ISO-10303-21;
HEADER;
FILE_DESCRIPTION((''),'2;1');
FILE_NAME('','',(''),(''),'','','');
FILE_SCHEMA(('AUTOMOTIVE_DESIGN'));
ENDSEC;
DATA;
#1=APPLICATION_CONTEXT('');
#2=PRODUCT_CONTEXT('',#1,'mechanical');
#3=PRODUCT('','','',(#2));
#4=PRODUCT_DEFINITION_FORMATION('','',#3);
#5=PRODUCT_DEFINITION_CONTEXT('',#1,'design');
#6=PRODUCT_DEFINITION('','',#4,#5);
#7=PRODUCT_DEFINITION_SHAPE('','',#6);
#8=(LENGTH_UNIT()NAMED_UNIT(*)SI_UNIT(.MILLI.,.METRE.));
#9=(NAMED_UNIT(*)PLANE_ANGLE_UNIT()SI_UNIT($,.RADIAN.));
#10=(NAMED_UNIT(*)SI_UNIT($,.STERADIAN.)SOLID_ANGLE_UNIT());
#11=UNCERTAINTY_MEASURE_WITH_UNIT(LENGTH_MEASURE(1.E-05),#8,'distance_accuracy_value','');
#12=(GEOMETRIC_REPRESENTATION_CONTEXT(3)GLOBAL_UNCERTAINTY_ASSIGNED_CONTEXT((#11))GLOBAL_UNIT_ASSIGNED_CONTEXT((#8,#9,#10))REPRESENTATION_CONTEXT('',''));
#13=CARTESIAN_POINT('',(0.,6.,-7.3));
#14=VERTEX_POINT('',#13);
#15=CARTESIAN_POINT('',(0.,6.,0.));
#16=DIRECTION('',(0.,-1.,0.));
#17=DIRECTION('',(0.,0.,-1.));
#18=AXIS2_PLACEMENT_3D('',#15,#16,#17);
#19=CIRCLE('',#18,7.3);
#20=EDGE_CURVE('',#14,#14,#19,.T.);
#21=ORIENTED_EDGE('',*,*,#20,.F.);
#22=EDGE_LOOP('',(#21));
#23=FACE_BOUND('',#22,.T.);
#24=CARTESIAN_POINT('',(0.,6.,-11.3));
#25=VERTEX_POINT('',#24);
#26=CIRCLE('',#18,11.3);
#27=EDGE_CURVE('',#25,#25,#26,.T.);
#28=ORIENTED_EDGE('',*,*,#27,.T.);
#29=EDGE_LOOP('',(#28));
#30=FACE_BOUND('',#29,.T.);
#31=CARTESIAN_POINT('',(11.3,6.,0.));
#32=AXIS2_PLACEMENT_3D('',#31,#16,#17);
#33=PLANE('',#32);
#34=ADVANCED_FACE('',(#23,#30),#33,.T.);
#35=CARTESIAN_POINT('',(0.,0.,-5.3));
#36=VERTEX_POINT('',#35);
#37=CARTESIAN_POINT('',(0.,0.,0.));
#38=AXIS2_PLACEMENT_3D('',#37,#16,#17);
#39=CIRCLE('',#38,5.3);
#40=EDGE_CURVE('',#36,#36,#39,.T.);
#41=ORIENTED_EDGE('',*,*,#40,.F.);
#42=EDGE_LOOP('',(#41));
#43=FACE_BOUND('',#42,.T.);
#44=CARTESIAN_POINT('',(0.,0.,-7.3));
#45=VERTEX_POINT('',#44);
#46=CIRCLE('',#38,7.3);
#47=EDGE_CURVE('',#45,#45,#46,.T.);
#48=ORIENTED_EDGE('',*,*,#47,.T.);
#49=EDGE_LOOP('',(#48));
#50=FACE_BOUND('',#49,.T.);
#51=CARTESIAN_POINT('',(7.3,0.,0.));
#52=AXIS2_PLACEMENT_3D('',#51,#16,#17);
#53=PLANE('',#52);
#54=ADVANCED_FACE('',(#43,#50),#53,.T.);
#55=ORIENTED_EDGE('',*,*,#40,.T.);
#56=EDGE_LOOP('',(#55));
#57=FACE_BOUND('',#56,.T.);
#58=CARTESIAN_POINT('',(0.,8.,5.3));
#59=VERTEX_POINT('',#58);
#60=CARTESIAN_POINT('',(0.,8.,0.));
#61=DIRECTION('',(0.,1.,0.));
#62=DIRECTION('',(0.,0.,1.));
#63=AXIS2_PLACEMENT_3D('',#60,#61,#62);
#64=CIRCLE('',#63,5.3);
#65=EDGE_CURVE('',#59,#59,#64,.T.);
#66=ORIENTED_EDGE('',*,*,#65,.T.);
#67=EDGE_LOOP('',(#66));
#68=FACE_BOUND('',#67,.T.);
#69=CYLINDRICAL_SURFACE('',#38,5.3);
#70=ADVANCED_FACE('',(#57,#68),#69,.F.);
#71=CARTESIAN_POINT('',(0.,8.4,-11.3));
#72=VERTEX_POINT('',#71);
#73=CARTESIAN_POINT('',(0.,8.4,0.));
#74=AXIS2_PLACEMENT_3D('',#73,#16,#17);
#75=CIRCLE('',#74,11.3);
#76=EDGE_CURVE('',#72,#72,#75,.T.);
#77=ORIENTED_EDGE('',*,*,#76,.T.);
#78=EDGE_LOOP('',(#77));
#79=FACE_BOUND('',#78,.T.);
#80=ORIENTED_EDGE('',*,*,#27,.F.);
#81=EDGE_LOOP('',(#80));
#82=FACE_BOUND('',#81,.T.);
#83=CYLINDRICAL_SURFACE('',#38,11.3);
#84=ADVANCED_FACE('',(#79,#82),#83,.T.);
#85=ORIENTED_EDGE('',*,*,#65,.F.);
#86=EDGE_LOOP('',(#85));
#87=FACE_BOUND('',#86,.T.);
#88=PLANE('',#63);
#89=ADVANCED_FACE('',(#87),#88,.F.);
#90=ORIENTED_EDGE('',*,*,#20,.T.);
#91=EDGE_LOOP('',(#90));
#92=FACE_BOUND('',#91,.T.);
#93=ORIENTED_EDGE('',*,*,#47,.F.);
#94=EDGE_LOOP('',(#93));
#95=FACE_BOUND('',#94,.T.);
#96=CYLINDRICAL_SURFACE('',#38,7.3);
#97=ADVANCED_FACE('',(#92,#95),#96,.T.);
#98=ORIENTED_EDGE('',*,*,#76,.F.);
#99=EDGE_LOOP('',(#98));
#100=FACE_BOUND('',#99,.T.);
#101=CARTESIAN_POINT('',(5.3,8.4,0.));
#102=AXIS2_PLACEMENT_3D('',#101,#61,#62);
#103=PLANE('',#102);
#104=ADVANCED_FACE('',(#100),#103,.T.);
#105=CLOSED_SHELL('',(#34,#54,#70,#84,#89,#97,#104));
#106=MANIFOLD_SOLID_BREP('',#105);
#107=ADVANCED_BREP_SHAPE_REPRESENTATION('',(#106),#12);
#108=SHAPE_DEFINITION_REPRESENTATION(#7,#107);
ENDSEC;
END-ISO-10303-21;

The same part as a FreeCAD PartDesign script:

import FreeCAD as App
import Part
import Sketcher

V = App.Vector
Q = App.Units.Quantity


def add_polygon(sketch, points):
    """Adds a closed chain of lines whose ends are joined by coincident constraints."""
    first, n = sketch.GeometryCount, len(points)
    for a, b in zip(points, points[1:] + points[:1]):
        sketch.addGeometry(Part.LineSegment(App.Vector(*a, 0), App.Vector(*b, 0)), False)
    for i in range(n):
        sketch.addConstraint(Sketcher.Constraint("Coincident", first + i, 2, first + (i + 1) % n, 1))

doc = App.newDocument("Part")
params = doc.addObject("Spreadsheet::Sheet", "Params")
for row, (alias, value) in enumerate([
    ("sketch1_width", "2 mm"),
    ("sketch1_width2", "4 mm"),
    ("sketch1_height", "8.4 mm"),
    ("revolution_angle", "360 deg"),
    ("pad1_length", "0.4 mm"),
], start=1):
    params.set(f"A{row}", alias)
    params.set(f"B{row}", "=" + value)
    params.setAlias(f"B{row}", alias)

body = doc.addObject("PartDesign::Body", "Body")

# Sketch on XY plane
sketch1 = body.newObject("Sketcher::SketchObject", "Sketch")
sketch1.AttachmentSupport = (doc.getObject("XY_Plane"), [""])
sketch1.MapMode = "FlatFace"
add_polygon(sketch1, [(5.3, 8.4), (5.3, 0), (7.3, 0), (7.3, 6), (11.3, 6), (11.3, 8.4)])  # lines 0-5
sketch1.addConstraint([
    Sketcher.Constraint("Vertical", 0),
    Sketcher.Constraint("Horizontal", 1),
    Sketcher.Constraint("Vertical", 2),
    Sketcher.Constraint("Horizontal", 3),
    Sketcher.Constraint("Vertical", 4),
    Sketcher.Constraint("Horizontal", 5),
    Sketcher.Constraint("PointOnObject", 0, 2, -1),
    Sketcher.Constraint("Equal", 5, 2),
    Sketcher.Constraint("DistanceX", 1, 1, 1, 2, Q("2 mm")),
    Sketcher.Constraint("DistanceX", 3, 1, 3, 2, Q("4 mm")),
    Sketcher.Constraint("DistanceY", 0, 2, 0, 1, Q("8.4 mm")),
    Sketcher.Constraint("DistanceX", -1, 1, 0, 2, Q("5.3 mm")),
])
sketch1.setExpression("Constraints[14]", "Params.sketch1_width")
sketch1.setExpression("Constraints[15]", "Params.sketch1_width2")
sketch1.setExpression("Constraints[16]", "Params.sketch1_height")
revolution = body.newObject("PartDesign::Revolution", "Revolution")
revolution.Profile = sketch1
revolution.ReferenceAxis = (sketch1, ["V_Axis"])
revolution.setExpression("Angle", "Params.revolution_angle")

# Sketch on XZ plane
sketch2 = body.newObject("Sketcher::SketchObject", "Sketch001")
sketch2.AttachmentSupport = (doc.getObject("XZ_Plane"), [""])
sketch2.MapMode = "FlatFace"
sketch2.AttachmentOffset = App.Placement(V(0, 0, -8.4), App.Rotation())
sketch2.addGeometry(Part.Circle(V(0, 0, 0), V(0, 0, 1), 6), False)
sketch2.addConstraint([
    Sketcher.Constraint("Coincident", 0, 3, -1, 1),
    Sketcher.Constraint("Diameter", 0, Q("11.179245 mm")),
])
pad1 = body.newObject("PartDesign::Pad", "Pad")
pad1.Profile = sketch2
pad1.setExpression("Length", "Params.pad1_length")

doc.recompute()
